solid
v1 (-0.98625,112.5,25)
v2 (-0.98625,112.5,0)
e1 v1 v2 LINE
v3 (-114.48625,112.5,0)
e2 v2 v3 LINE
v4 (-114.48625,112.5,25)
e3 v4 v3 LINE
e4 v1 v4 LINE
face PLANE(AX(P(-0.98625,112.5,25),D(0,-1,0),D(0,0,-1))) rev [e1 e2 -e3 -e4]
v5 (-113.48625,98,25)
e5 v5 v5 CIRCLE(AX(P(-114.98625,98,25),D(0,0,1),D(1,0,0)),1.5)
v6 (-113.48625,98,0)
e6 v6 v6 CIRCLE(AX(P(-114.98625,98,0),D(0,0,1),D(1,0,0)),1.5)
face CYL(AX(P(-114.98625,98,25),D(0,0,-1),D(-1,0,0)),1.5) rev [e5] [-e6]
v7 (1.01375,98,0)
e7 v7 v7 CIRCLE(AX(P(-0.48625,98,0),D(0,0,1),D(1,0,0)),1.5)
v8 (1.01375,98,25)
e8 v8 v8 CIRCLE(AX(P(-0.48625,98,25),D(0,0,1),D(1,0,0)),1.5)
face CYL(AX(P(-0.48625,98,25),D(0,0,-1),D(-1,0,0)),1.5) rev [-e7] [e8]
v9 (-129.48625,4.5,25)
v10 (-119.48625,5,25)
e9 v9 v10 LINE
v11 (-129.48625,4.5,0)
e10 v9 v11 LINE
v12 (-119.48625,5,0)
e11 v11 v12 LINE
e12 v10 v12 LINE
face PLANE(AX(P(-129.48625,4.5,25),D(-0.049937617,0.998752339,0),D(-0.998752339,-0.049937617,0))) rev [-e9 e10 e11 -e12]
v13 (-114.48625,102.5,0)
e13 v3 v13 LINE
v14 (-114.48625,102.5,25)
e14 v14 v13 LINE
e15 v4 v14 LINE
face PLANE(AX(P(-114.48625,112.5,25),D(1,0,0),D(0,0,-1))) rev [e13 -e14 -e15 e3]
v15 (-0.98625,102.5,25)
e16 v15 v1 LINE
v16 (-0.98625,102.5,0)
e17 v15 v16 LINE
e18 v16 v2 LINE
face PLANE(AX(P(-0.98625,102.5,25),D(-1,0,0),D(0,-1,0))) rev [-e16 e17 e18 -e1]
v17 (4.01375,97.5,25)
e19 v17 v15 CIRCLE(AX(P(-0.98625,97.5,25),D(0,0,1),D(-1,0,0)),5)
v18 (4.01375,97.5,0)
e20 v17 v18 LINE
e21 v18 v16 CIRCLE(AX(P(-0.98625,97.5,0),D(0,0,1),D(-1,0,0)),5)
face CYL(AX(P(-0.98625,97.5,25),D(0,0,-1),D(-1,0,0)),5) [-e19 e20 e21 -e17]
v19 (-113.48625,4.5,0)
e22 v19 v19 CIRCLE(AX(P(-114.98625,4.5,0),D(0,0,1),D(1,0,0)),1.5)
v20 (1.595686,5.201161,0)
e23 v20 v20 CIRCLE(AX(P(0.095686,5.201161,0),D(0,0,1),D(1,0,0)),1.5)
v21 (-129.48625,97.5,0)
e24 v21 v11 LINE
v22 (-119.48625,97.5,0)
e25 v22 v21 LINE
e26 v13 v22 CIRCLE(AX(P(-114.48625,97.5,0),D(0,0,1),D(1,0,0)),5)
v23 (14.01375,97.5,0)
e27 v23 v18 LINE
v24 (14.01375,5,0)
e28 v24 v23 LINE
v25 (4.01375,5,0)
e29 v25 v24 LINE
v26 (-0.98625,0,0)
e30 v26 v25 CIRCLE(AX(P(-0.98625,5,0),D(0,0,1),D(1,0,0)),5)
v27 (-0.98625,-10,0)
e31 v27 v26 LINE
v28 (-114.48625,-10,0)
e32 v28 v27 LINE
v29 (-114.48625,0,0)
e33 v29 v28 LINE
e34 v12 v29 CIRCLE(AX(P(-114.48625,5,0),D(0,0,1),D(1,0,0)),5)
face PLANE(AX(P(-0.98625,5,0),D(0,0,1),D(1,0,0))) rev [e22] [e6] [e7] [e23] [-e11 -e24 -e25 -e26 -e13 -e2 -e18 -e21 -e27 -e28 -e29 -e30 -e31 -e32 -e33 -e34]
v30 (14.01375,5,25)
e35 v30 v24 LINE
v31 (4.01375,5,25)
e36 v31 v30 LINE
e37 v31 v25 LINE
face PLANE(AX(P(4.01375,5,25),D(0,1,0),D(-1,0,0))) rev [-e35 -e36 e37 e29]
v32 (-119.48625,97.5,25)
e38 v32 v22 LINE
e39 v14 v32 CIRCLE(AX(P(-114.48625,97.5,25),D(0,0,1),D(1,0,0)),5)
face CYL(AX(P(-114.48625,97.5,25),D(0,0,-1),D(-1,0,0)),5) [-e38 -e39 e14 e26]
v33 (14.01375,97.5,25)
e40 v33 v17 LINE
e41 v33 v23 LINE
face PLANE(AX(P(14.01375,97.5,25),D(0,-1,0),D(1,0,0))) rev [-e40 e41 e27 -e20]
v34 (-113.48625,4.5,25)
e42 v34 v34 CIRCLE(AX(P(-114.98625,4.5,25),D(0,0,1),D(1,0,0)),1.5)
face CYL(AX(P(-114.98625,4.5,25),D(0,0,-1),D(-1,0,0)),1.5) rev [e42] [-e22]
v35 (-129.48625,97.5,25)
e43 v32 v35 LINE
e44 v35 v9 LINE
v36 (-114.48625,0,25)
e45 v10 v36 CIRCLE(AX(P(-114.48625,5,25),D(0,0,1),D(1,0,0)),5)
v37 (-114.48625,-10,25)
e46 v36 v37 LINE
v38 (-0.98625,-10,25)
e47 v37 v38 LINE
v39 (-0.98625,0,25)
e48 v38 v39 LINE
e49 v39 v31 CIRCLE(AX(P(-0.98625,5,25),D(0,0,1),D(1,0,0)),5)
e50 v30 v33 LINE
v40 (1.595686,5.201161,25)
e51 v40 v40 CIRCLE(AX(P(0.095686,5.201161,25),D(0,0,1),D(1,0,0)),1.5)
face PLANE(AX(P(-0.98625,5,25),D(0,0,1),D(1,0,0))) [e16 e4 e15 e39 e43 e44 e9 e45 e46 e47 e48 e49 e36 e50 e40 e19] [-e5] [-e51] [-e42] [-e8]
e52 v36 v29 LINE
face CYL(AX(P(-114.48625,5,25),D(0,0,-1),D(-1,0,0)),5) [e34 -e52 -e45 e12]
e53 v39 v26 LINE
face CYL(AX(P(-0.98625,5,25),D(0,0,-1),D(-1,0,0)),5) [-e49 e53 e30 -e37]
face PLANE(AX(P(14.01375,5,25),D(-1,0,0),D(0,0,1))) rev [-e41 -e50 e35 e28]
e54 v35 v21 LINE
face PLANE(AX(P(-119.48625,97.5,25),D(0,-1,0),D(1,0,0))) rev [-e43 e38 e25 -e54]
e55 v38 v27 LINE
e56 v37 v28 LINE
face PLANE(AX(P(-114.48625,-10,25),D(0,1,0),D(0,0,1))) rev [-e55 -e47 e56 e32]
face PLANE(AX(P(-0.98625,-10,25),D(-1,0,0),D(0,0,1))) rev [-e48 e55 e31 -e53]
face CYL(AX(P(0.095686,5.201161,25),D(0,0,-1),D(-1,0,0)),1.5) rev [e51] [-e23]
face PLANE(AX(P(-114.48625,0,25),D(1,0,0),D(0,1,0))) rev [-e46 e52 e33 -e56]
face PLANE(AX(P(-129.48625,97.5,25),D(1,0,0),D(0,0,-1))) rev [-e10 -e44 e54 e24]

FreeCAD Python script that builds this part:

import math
import FreeCAD as App
import Part
import Sketcher
Q = App.Units.Quantity

doc = App.newDocument("Part")
body = doc.addObject("PartDesign::Body", "Body")

# Sketch on XY plane
sketch1 = body.newObject("Sketcher::SketchObject", "Sketch")
sketch1.AttachmentSupport = (doc.getObject("XY_Plane"), [""])
sketch1.MapMode = "FlatFace"
sketch1.addGeometry([
    Part.LineSegment(App.Vector(-119.5, 97.5, 0), App.Vector(-129.5, 97.5, 0)),  # 0
    Part.LineSegment(App.Vector(-129.5, 97.5, 0), App.Vector(-129.5, 4.5, 0)),  # 1
    Part.LineSegment(App.Vector(-129.5, 4.5, 0), App.Vector(-119.5, 5, 0)),  # 2
    Part.ArcOfCircle(Part.Circle(App.Vector(-114.5, 5, 0), App.Vector(0, 0, 1), 5), math.radians(180), math.radians(270)),  # 3
    Part.LineSegment(App.Vector(-114.5, 0, 0), App.Vector(-114.5, -10, 0)),  # 4
    Part.LineSegment(App.Vector(-114.5, -10, 0), App.Vector(-1, -10, 0)),  # 5
    Part.LineSegment(App.Vector(-1, -10, 0), App.Vector(-1, 0, 0)),  # 6
    Part.ArcOfCircle(Part.Circle(App.Vector(-1, 5, 0), App.Vector(0, 0, 1), 5), math.radians(-90), math.radians(0)),  # 7
    Part.LineSegment(App.Vector(4, 5, 0), App.Vector(14, 5, 0)),  # 8
    Part.LineSegment(App.Vector(14, 5, 0), App.Vector(14, 97.5, 0)),  # 9
    Part.LineSegment(App.Vector(14, 97.5, 0), App.Vector(4, 97.5, 0)),  # 10
    Part.ArcOfCircle(Part.Circle(App.Vector(-1, 97.5, 0), App.Vector(0, 0, 1), 5), math.radians(0), math.radians(90)),  # 11
    Part.LineSegment(App.Vector(-1, 102.5, 0), App.Vector(-1, 112.5, 0)),  # 12
    Part.LineSegment(App.Vector(-1, 112.5, 0), App.Vector(-114.5, 112.5, 0)),  # 13
    Part.LineSegment(App.Vector(-114.5, 112.5, 0), App.Vector(-114.5, 102.5, 0)),  # 14
    Part.ArcOfCircle(Part.Circle(App.Vector(-114.5, 97.5, 0), App.Vector(0, 0, 1), 5), math.radians(90), math.radians(180)),  # 15
    Part.Circle(App.Vector(-115, 4.5, 0), App.Vector(0, 0, 1), 1.5),  # 16
    Part.Circle(App.Vector(0.1, 5.2, 0), App.Vector(0, 0, 1), 1.5),  # 17
    Part.Circle(App.Vector(-115, 98, 0), App.Vector(0, 0, 1), 1.5),  # 18
    Part.Circle(App.Vector(-0.5, 98, 0), App.Vector(0, 0, 1), 1.5),  # 19
], False)
sketch1.addConstraint([
    Sketcher.Constraint("Coincident", 0, 2, 1, 1),
    Sketcher.Constraint("Coincident", 1, 2, 2, 1),
    Sketcher.Constraint("Coincident", 2, 2, 3, 1),
    Sketcher.Constraint("Coincident", 3, 2, 4, 1),
    Sketcher.Constraint("Coincident", 4, 2, 5, 1),
    Sketcher.Constraint("Coincident", 5, 2, 6, 1),
    Sketcher.Constraint("Coincident", 6, 2, 7, 1),
    Sketcher.Constraint("Coincident", 7, 2, 8, 1),
    Sketcher.Constraint("Coincident", 8, 2, 9, 1),
    Sketcher.Constraint("Coincident", 9, 2, 10, 1),
    Sketcher.Constraint("Coincident", 10, 2, 11, 1),
    Sketcher.Constraint("Coincident", 11, 2, 12, 1),
    Sketcher.Constraint("Coincident", 12, 2, 13, 1),
    Sketcher.Constraint("Coincident", 13, 2, 14, 1),
    Sketcher.Constraint("Coincident", 14, 2, 15, 1),
    Sketcher.Constraint("Coincident", 15, 2, 0, 1),
    Sketcher.Constraint("Horizontal", 0),
    Sketcher.Constraint("Vertical", 1),
    Sketcher.Constraint("Vertical", 4),
    Sketcher.Constraint("Horizontal", 5),
    Sketcher.Constraint("Vertical", 6),
    Sketcher.Constraint("Horizontal", 8),
    Sketcher.Constraint("Vertical", 9),
    Sketcher.Constraint("Horizontal", 10),
    Sketcher.Constraint("Vertical", 12),
    Sketcher.Constraint("Horizontal", 13),
    Sketcher.Constraint("Vertical", 14),
    Sketcher.Constraint("Equal", 3, 7),
    Sketcher.Constraint("Equal", 7, 11),
    Sketcher.Constraint("Equal", 11, 15),
    Sketcher.Constraint("Equal", 16, 17),
    Sketcher.Constraint("Equal", 17, 18),
    Sketcher.Constraint("Equal", 18, 19),
    Sketcher.Constraint("PointOnObject", 3, 2, -1),
    Sketcher.Constraint("PointOnObject", 6, 2, -1),
    Sketcher.Constraint("Horizontal", 11, 3, 15, 3),
    Sketcher.Constraint("Horizontal", 18, 3, 19, 3),
    Sketcher.Constraint("Horizontal", 15, 3, 0, 2),
    Sketcher.Constraint("Horizontal", 16, 3, 1, 2),
    Sketcher.Constraint("Horizontal", 7, 3, 2, 2),
    Sketcher.Constraint("Horizontal", 2, 2, 7, 2),
    Sketcher.Constraint("Horizontal", 0, 2, 9, 2),
    Sketcher.Constraint("Vertical", 7, 3, 11, 3),
    Sketcher.Constraint("Vertical", 3, 3, 15, 3),
    Sketcher.Constraint("Vertical", 16, 3, 18, 3),
    Sketcher.Constraint("Vertical", 15, 3, 3, 2),
    Sketcher.Constraint("Vertical", 11, 3, 5, 2),
    Sketcher.Constraint("Vertical", 6, 2, 11, 2),
    Sketcher.Constraint("Vertical", 4, 2, 13, 2),
    Sketcher.Constraint("Equal", 0, 8),
    Sketcher.Constraint("Equal", 10, 4),
    Sketcher.Constraint("Equal", 6, 12),
    Sketcher.Constraint("Diameter", 16, Q("3 mm")),
    Sketcher.Constraint("Radius", 3, Q("5 mm")),
    Sketcher.Constraint("DistanceX", 0, 2, 0, 1, Q("10 mm")),
    Sketcher.Constraint("DistanceY", 1, 2, 1, 1, Q("93 mm")),
    Sketcher.Constraint("DistanceX", 5, 1, 5, 2, Q("113.5 mm")),
    Sketcher.Constraint("DistanceY", 9, 1, 9, 2, Q("92.5 mm")),
    Sketcher.Constraint("DistanceY", -1, 1, 18, 3, Q("98 mm")),
    Sketcher.Constraint("DistanceX", 16, 3, 7, 3, Q("114 mm")),
    Sketcher.Constraint("DistanceX", 15, 3, 19, 3, Q("114 mm")),
    Sketcher.Constraint("DistanceX", 3, 3, -1, 1, Q("114.48625 mm")),
    Sketcher.Constraint("DistanceY", -1, 1, 17, 3, Q("5.201161 mm")),
    Sketcher.Constraint("DistanceX", -1, 1, 17, 3, Q("0.095686 mm")),
])
pad1 = body.newObject("PartDesign::Pad", "Pad")
pad1.Profile = sketch1
pad1.Length = 25

doc.recompute()
